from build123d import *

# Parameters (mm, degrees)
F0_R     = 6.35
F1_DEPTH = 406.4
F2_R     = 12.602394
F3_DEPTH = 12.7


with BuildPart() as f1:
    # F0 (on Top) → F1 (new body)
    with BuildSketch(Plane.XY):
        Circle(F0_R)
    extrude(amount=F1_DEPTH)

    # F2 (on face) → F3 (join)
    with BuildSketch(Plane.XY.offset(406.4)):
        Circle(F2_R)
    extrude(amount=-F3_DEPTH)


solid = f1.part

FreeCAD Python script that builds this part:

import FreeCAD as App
import Part
import Sketcher
from FreeCAD import Vector
Q = App.Units.Quantity

doc = App.newDocument("Part")
body = doc.addObject("PartDesign::Body", "Body")

# Sketch on XY plane
sketch1 = body.newObject("Sketcher::SketchObject", "Sketch")
sketch1.AttachmentSupport = (doc.getObject("XY_Plane"), [""])
sketch1.MapMode = "FlatFace"
sketch1.addGeometry(Part.Circle(Vector(0, 0, 0), Vector(0, 0, 1), 6.35), False)
sketch1.addConstraint(Sketcher.Constraint("Coincident", 0, 3, -1, 1))
sketch1.addConstraint(Sketcher.Constraint("Diameter", 0, Q("0.5 in")))
pad1 = body.newObject("PartDesign::Pad", "Pad")
pad1.Profile = sketch1
pad1.Length = Q("16 in")

# Sketch on XY plane
sketch2 = body.newObject("Sketcher::SketchObject", "Sketch001")
sketch2.AttachmentSupport = (doc.getObject("XY_Plane"), [""])
sketch2.MapMode = "FlatFace"
sketch2.AttachmentOffset = App.Placement(Vector(0, 0, 16 * 25.4), App.Rotation())
sketch2.addGeometry(Part.Circle(Vector(0, 0, 0), Vector(0, 0, 1), 12.602394), False)
sketch2.addConstraint(Sketcher.Constraint("Coincident", 0, 3, -1, 1))
sketch2.addConstraint(Sketcher.Constraint("Diameter", 0, 25.204788))
pad2 = body.newObject("PartDesign::Pad", "Pad001")
pad2.Profile = sketch2
pad2.Length = Q("0.5 in")
pad2.Reversed = True

doc.recompute()
